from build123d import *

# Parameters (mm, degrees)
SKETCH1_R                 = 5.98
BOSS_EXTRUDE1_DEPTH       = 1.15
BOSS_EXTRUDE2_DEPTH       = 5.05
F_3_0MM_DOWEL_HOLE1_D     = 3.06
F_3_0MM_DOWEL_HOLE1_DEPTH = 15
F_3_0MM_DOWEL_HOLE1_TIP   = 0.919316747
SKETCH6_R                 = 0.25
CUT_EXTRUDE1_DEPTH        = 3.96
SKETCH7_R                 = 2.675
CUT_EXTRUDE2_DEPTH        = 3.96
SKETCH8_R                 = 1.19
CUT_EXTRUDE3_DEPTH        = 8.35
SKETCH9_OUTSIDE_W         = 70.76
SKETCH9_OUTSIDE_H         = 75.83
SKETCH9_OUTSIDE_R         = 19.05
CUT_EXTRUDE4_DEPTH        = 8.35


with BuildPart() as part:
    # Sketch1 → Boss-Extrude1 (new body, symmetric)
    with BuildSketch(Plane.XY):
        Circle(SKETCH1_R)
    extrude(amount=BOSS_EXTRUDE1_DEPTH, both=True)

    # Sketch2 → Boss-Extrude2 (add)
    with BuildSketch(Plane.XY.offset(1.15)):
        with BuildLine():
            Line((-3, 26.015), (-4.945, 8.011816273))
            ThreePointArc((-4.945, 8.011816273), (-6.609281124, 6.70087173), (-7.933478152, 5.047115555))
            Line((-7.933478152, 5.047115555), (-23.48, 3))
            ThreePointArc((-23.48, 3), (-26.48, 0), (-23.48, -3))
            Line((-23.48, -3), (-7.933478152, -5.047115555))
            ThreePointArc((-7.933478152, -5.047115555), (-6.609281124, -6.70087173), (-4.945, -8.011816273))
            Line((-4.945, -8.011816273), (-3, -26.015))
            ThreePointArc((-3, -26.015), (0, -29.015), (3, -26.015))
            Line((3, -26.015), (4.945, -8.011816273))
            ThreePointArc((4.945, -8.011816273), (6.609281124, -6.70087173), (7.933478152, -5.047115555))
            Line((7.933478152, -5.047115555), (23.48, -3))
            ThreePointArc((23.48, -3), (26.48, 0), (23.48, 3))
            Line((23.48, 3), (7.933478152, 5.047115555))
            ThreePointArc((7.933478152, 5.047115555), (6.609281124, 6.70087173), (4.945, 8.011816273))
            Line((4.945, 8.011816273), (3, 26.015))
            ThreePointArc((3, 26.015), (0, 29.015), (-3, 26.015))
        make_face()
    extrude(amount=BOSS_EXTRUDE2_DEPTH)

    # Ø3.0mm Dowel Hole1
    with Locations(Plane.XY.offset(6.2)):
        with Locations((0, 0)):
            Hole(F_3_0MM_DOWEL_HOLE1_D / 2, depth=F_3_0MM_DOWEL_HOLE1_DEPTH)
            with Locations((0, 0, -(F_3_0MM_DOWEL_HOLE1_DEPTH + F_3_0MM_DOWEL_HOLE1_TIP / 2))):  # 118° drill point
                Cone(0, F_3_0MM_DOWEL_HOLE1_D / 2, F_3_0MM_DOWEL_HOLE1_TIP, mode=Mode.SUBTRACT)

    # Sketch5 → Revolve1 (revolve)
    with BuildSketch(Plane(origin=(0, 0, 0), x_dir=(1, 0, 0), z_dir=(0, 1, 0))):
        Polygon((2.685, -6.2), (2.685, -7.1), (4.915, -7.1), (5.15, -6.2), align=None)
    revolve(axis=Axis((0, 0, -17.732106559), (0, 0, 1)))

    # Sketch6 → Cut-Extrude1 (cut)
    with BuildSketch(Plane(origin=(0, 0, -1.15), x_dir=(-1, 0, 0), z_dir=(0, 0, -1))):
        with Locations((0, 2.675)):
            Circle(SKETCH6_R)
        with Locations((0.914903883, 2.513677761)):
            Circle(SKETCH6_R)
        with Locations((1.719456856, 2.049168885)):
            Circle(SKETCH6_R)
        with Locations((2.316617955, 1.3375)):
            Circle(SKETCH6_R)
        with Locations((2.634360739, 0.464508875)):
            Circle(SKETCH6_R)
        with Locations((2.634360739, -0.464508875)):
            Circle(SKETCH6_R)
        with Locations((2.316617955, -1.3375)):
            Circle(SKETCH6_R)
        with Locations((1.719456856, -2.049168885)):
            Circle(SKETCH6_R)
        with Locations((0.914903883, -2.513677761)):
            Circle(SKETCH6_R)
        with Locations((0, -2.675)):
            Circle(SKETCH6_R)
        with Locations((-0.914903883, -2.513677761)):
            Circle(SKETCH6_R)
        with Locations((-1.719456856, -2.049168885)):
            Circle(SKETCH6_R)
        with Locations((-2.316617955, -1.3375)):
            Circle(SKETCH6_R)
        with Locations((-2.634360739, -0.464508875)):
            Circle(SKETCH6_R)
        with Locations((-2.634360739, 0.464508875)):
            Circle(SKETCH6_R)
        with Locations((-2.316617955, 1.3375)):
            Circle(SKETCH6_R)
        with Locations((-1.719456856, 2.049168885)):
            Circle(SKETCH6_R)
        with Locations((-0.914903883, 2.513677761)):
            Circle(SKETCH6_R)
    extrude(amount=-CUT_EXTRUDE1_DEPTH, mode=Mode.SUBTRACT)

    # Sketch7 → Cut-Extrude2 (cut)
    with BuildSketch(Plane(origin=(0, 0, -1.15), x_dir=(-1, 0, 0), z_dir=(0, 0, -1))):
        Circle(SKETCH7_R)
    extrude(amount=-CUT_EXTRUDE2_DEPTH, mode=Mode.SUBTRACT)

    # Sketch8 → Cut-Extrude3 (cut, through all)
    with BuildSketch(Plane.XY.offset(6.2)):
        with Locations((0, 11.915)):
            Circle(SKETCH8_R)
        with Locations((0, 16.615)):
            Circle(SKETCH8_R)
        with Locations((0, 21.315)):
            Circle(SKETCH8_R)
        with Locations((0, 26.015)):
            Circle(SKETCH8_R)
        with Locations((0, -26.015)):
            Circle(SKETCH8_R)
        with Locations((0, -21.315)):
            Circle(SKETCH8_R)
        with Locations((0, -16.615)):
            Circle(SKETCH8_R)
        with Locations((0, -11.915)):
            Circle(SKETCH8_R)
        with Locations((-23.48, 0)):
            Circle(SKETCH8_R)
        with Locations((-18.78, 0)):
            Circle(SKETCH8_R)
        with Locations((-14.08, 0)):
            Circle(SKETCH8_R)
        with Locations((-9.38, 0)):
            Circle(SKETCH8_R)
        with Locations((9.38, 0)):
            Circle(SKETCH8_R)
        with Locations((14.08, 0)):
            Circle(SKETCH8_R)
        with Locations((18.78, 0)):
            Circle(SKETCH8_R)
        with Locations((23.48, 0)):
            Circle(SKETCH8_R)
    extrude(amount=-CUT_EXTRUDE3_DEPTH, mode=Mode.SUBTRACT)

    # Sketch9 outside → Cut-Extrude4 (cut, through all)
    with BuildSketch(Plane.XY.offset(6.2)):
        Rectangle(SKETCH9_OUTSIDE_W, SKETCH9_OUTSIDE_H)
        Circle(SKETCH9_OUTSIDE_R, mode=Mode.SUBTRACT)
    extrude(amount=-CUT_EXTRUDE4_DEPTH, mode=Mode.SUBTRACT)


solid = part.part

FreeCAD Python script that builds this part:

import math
import FreeCAD as App
import Part
import Sketcher

V = App.Vector
Q = App.Units.Quantity

doc = App.newDocument("Part")
params = doc.addObject("Spreadsheet::Sheet", "Params")
for row, (alias, value) in enumerate([
    ("sketch1_diameter", "11.96 mm"),
    ("pad1_length", "2.3 mm"),
    ("sketch2_radius", "3 mm"),
    ("pad2_length", "5.05 mm"),
    ("sketch3_diameter", "3.06 mm"),
    ("hole_diameter", "3.06 mm"),
    ("hole_depth", "15 mm"),
    ("sketch4_height", "0.9 mm"),
    ("sketch4_width", "2.23 mm"),
    ("revolution_angle", "360 deg"),
    ("sketch5_diameter", "0.5 mm"),
    ("pocket1_length", "3.96 mm"),
    ("sketch6_diameter", "5.35 mm"),
    ("pocket2_length", "3.96 mm"),
    ("sketch7_diameter", "2.38 mm"),
    ("sketch8_diameter", "38.1 mm"),
    ("sketch8_width", "70.76 mm"),
    ("sketch8_height", "75.83 mm"),
], start=1):
    params.set(f"A{row}", alias)
    params.set(f"B{row}", "=" + value)
    params.setAlias(f"B{row}", alias)

body = doc.addObject("PartDesign::Body", "Body")

sketch1 = body.newObject("Sketcher::SketchObject", "Sketch")
sketch1.AttachmentSupport = (doc.getObject("XY_Plane"), [""])
sketch1.MapMode = "FlatFace"
sketch1.addGeometry(Part.Circle(V(0, 0, 0), V(0, 0, 1), 6), False)
sketch1.addConstraint([
    Sketcher.Constraint("Coincident", 0, 3, -1, 1),
    Sketcher.Constraint("Diameter", 0, Q("11.96 mm")),
])
sketch1.setExpression("Constraints[1]", "Params.sketch1_diameter")
pad1 = body.newObject("PartDesign::Pad", "Pad")
pad1.Profile = sketch1
pad1.setExpression("Length", "Params.pad1_length")
pad1.Midplane = True

sketch2 = body.newObject("Sketcher::SketchObject", "Sketch001")
sketch2.AttachmentSupport = (doc.getObject("XY_Plane"), [""])
sketch2.MapMode = "FlatFace"
sketch2.AttachmentOffset = App.Placement(V(0, 0, 1.15), App.Rotation())
sketch2.addGeometry([
    Part.LineSegment(V(-3, 26, 0), V(-4.9, 8, 0)),
    Part.ArcOfCircle(Part.Circle(V(-0.1, 0.1, 0), V(0, 0, 1), 9.3), math.radians(122), math.radians(148)),
    Part.LineSegment(V(-7.9, 5, 0), V(-23.5, 3, 0)),
    Part.ArcOfCircle(Part.Circle(V(-23.5, 0, 0), V(0, 0, 1), 3), math.radians(90), math.radians(270)),
    Part.LineSegment(V(-23.5, -3, 0), V(-7.9, -5, 0)),
    Part.ArcOfCircle(Part.Circle(V(-0.1, -0.1, 0), V(0, 0, 1), 9.3), math.radians(-148), math.radians(-122)),
    Part.LineSegment(V(-4.9, -8, 0), V(-3, -26, 0)),
    Part.ArcOfCircle(Part.Circle(V(0, -26, 0), V(0, 0, 1), 3), math.radians(180), math.radians(360)),
    Part.LineSegment(V(3, -26, 0), V(4.9, -8, 0)),
    Part.ArcOfCircle(Part.Circle(V(0.1, -0.1, 0), V(0, 0, 1), 9.3), math.radians(-58), math.radians(-32)),
    Part.LineSegment(V(7.9, -5, 0), V(23.5, -3, 0)),
    Part.ArcOfCircle(Part.Circle(V(23.5, 0, 0), V(0, 0, 1), 3), math.radians(-90), math.radians(90)),
    Part.LineSegment(V(23.5, 3, 0), V(7.9, 5, 0)),
    Part.ArcOfCircle(Part.Circle(V(0.1, 0.1, 0), V(0, 0, 1), 9.3), math.radians(32), math.radians(58)),
    Part.LineSegment(V(4.9, 8, 0), V(3, 26, 0)),
    Part.ArcOfCircle(Part.Circle(V(0, 26, 0), V(0, 0, 1), 3), math.radians(0), math.radians(180)),
], False)
sketch2.addConstraint([
    Sketcher.Constraint("Coincident", 0, 2, 1, 1),
    Sketcher.Constraint("Coincident", 1, 2, 2, 1),
    Sketcher.Constraint("Coincident", 2, 2, 3, 1),
    Sketcher.Constraint("Coincident", 3, 2, 4, 1),
    Sketcher.Constraint("Coincident", 4, 2, 5, 1),
    Sketcher.Constraint("Coincident", 5, 2, 6, 1),
    Sketcher.Constraint("Coincident", 6, 2, 7, 1),
    Sketcher.Constraint("Coincident", 7, 2, 8, 1),
    Sketcher.Constraint("Coincident", 8, 2, 9, 1),
    Sketcher.Constraint("Coincident", 9, 2, 10, 1),
    Sketcher.Constraint("Coincident", 10, 2, 11, 1),
    Sketcher.Constraint("Coincident", 11, 2, 12, 1),
    Sketcher.Constraint("Coincident", 12, 2, 13, 1),
    Sketcher.Constraint("Coincident", 13, 2, 14, 1),
    Sketcher.Constraint("Coincident", 14, 2, 15, 1),
    Sketcher.Constraint("Coincident", 15, 2, 0, 1),
    Sketcher.Constraint("Equal", 1, 5),
    Sketcher.Constraint("Equal", 3, 7),
    Sketcher.Constraint("Equal", 5, 9),
    Sketcher.Constraint("Equal", 7, 11),
    Sketcher.Constraint("Equal", 9, 13),
    Sketcher.Constraint("Equal", 11, 15),
    Sketcher.Constraint("Symmetric", 1, 3, 9, 3, -1, 1),
    Sketcher.Constraint("Symmetric", 3, 3, 11, 3, -1, 1),
    Sketcher.Constraint("Symmetric", 5, 3, 13, 3, -1, 1),
    Sketcher.Constraint("Symmetric", 7, 3, 15, 3, -1, 1),
    Sketcher.Constraint("Symmetric", 5, 3, 9, 3, -2),
    Sketcher.Constraint("Symmetric", 6, 2, 7, 2, -2),
    Sketcher.Constraint("Symmetric", 3, 2, 10, 2, -2),
    Sketcher.Constraint("Parallel", 0, 8),
    Sketcher.Constraint("Parallel", 2, 10),
    Sketcher.Constraint("Parallel", 4, 12),
    Sketcher.Constraint("Parallel", 6, 14),
    Sketcher.Constraint("Horizontal", 7, 3, 6, 2),
    Sketcher.Constraint("Horizontal", 5, 2, 8, 2),
    Sketcher.Constraint("Horizontal", 4, 2, 9, 2),
    Sketcher.Constraint("Horizontal", 1, 2, 12, 2),
    Sketcher.Constraint("Horizontal", 0, 2, 13, 2),
    Sketcher.Constraint("Horizontal", 15, 3, 14, 2),
    Sketcher.Constraint("Vertical", 3, 3, 2, 2),
    Sketcher.Constraint("Vertical", 2, 2, 3, 2),
    Sketcher.Constraint("Radius", 3, Q("3 mm")),
    Sketcher.Constraint("Radius", 1, Q("9.295 mm")),
    Sketcher.Constraint("DistanceX", 3, 3, -1, 1, Q("23.48 mm")),
    Sketcher.Constraint("DistanceX", 5, 2, 8, 2, Q("9.89 mm")),
    Sketcher.Constraint("DistanceY", 7, 3, -1, 1, Q("26.015 mm")),
    Sketcher.Constraint("DistanceY", 1, 3, 1, 2, Q("4.945 mm")),
    Sketcher.Constraint("DistanceY", 1, 3, 0, 2, Q("7.909701 mm")),
    Sketcher.Constraint("Distance", 2, Q("15.680721 mm")),
])
sketch2.setExpression("Constraints[41]", "Params.sketch2_radius")
pad2 = body.newObject("PartDesign::Pad", "Pad001")
pad2.Profile = sketch2
pad2.setExpression("Length", "Params.pad2_length")

sketch3 = body.newObject("Sketcher::SketchObject", "Sketch002")
sketch3.AttachmentSupport = (doc.getObject("XY_Plane"), [""])
sketch3.MapMode = "FlatFace"
sketch3.AttachmentOffset = App.Placement(V(0, 0, 6.2), App.Rotation())
sketch3.addGeometry(Part.Circle(V(0, 0, 0), V(0, 0, 1), 1.5), False)
sketch3.addConstraint([
    Sketcher.Constraint("Coincident", 0, 3, -1, 1),
    Sketcher.Constraint("Diameter", 0, Q("3.06 mm")),
])
sketch3.setExpression("Constraints[1]", "Params.sketch3_diameter")
doc.recompute()
hole = body.newObject("PartDesign::Hole", "Hole")
hole.Profile = sketch3
hole.ThreadType = "None"
hole.setExpression("Diameter", "Params.hole_diameter")
hole.DepthType = "Dimension"
hole.setExpression("Depth", "Params.hole_depth")
hole.DrillPoint = "Angled"
hole.DrillPointAngle = 118

sketch4 = body.newObject("Sketcher::SketchObject", "Sketch003")
sketch4.AttachmentSupport = (doc.getObject("XZ_Plane"), [""])
sketch4.MapMode = "FlatFace"
sketch4.addGeometry([
    Part.LineSegment(V(2.7, 6.2, 0), V(2.7, 7.1, 0)),
    Part.LineSegment(V(2.7, 7.1, 0), V(4.9, 7.1, 0)),
    Part.LineSegment(V(4.9, 7.1, 0), V(5.2, 6.2, 0)),
    Part.LineSegment(V(5.2, 6.2, 0), V(2.7, 6.2, 0)),
], False)
sketch4.addConstraint([
    Sketcher.Constraint("Coincident", 0, 2, 1, 1),
    Sketcher.Constraint("Coincident", 1, 2, 2, 1),
    Sketcher.Constraint("Coincident", 2, 2, 3, 1),
    Sketcher.Constraint("Coincident", 3, 2, 0, 1),
    Sketcher.Constraint("Vertical", 0),
    Sketcher.Constraint("Horizontal", 1),
    Sketcher.Constraint("Horizontal", 3),
    Sketcher.Constraint("DistanceY", 0, 1, 0, 2, Q("0.9 mm")),
    Sketcher.Constraint("DistanceX", 1, 1, 1, 2, Q("2.23 mm")),
    Sketcher.Constraint("DistanceY", -1, 1, 0, 2, Q("7.1 mm")),
    Sketcher.Constraint("DistanceX", 3, 2, 3, 1, Q("2.465 mm")),
    Sketcher.Constraint("DistanceX", -1, 1, 2, 2, Q("5.15 mm")),
])
sketch4.setExpression("Constraints[7]", "Params.sketch4_height")
sketch4.setExpression("Constraints[8]", "Params.sketch4_width")
revolution = body.newObject("PartDesign::Revolution", "Revolution")
revolution.Profile = sketch4
revolution.ReferenceAxis = (sketch4, ["V_Axis"])
revolution.setExpression("Angle", "Params.revolution_angle")

sketch5 = body.newObject("Sketcher::SketchObject", "Sketch004")
sketch5.AttachmentSupport = (doc.getObject("XY_Plane"), [""])
sketch5.MapMode = "FlatFace"
sketch5.AttachmentOffset = App.Placement(V(0, 0, -1.15), App.Rotation())
sketch5.addGeometry([
    Part.Circle(V(0, 2.67, 0), V(0, 0, 1), 0.25),
    Part.Circle(V(-0.91, 2.51, 0), V(0, 0, 1), 0.25),
    Part.Circle(V(-1.72, 2.05, 0), V(0, 0, 1), 0.25),
    Part.Circle(V(-2.32, 1.34, 0), V(0, 0, 1), 0.25),
    Part.Circle(V(-2.63, 0.46, 0), V(0, 0, 1), 0.25),
    Part.Circle(V(-2.63, -0.46, 0), V(0, 0, 1), 0.25),
    Part.Circle(V(-2.32, -1.34, 0), V(0, 0, 1), 0.25),
    Part.Circle(V(-1.72, -2.05, 0), V(0, 0, 1), 0.25),
    Part.Circle(V(-0.91, -2.51, 0), V(0, 0, 1), 0.25),
    Part.Circle(V(0, -2.67, 0), V(0, 0, 1), 0.25),
    Part.Circle(V(0.91, -2.51, 0), V(0, 0, 1), 0.25),
    Part.Circle(V(1.72, -2.05, 0), V(0, 0, 1), 0.25),
    Part.Circle(V(2.32, -1.34, 0), V(0, 0, 1), 0.25),
    Part.Circle(V(2.63, -0.46, 0), V(0, 0, 1), 0.25),
    Part.Circle(V(2.63, 0.46, 0), V(0, 0, 1), 0.25),
    Part.Circle(V(2.32, 1.34, 0), V(0, 0, 1), 0.25),
    Part.Circle(V(1.72, 2.05, 0), V(0, 0, 1), 0.25),
    Part.Circle(V(0.91, 2.51, 0), V(0, 0, 1), 0.25),
], False)
sketch5.addConstraint([
    Sketcher.Constraint("Equal", 0, 1),
    Sketcher.Constraint("Equal", 1, 2),
    Sketcher.Constraint("Equal", 2, 3),
    Sketcher.Constraint("Equal", 3, 4),
    Sketcher.Constraint("Equal", 4, 5),
    Sketcher.Constraint("Equal", 5, 6),
    Sketcher.Constraint("Equal", 6, 7),
    Sketcher.Constraint("Equal", 7, 8),
    Sketcher.Constraint("Equal", 8, 9),
    Sketcher.Constraint("Equal", 9, 10),
    Sketcher.Constraint("Equal", 10, 11),
    Sketcher.Constraint("Equal", 11, 12),
    Sketcher.Constraint("Equal", 12, 13),
    Sketcher.Constraint("Equal", 13, 14),
    Sketcher.Constraint("Equal", 14, 15),
    Sketcher.Constraint("Equal", 15, 16),
    Sketcher.Constraint("Equal", 16, 17),
    Sketcher.Constraint("Symmetric", 0, 3, 9, 3, -1, 1),
    Sketcher.Constraint("Symmetric", 1, 3, 10, 3, -1, 1),
    Sketcher.Constraint("Symmetric", 2, 3, 11, 3, -1, 1),
    Sketcher.Constraint("Symmetric", 3, 3, 12, 3, -1, 1),
    Sketcher.Constraint("Symmetric", 4, 3, 13, 3, -1, 1),
    Sketcher.Constraint("Symmetric", 5, 3, 14, 3, -1, 1),
    Sketcher.Constraint("Symmetric", 6, 3, 15, 3, -1, 1),
    Sketcher.Constraint("Symmetric", 7, 3, 16, 3, -1, 1),
    Sketcher.Constraint("Symmetric", 8, 3, 17, 3, -1, 1),
    Sketcher.Constraint("Symmetric", 8, 3, 10, 3, -2),
    Sketcher.Constraint("Symmetric", 7, 3, 11, 3, -2),
    Sketcher.Constraint("Symmetric", 6, 3, 12, 3, -2),
    Sketcher.Constraint("Symmetric", 5, 3, 13, 3, -2),
    Sketcher.Constraint("PointOnObject", 0, 3, -2),
    Sketcher.Constraint("Diameter", 0, Q("0.5 mm")),
    Sketcher.Constraint("DistanceY", -1, 1, 0, 3, Q("2.675 mm")),
    Sketcher.Constraint("DistanceY", 6, 3, 3, 3, Q("2.675 mm")),
    Sketcher.Constraint("DistanceY", -1, 1, 2, 3, Q("2.049169 mm")),
    Sketcher.Constraint("DistanceX", 4, 3, -1, 1, Q("2.634361 mm")),
    Sketcher.Constraint("DistanceY", -1, 1, 4, 3, Q("0.464509 mm")),
    Sketcher.Constraint("DistanceY", 2, 3, 1, 3, Q("0.464509 mm")),
    Sketcher.Constraint("DistanceX", 3, 3, 2, 3, Q("0.597161 mm")),
    Sketcher.Constraint("DistanceX", 7, 3, 10, 3, Q("2.634361 mm")),
    Sketcher.Constraint("DistanceX", 1, 3, -1, 1, Q("0.914904 mm")),
])
sketch5.setExpression("Constraints[31]", "Params.sketch5_diameter")
pocket1 = body.newObject("PartDesign::Pocket", "Pocket")
pocket1.Profile = sketch5
pocket1.setExpression("Length", "Params.pocket1_length")
pocket1.Reversed = True

sketch6 = body.newObject("Sketcher::SketchObject", "Sketch005")
sketch6.AttachmentSupport = (doc.getObject("XY_Plane"), [""])
sketch6.MapMode = "FlatFace"
sketch6.AttachmentOffset = App.Placement(V(0, 0, -1.15), App.Rotation())
sketch6.addGeometry(Part.Circle(V(0, 0, 0), V(0, 0, 1), 2.7), False)
sketch6.addConstraint([
    Sketcher.Constraint("Coincident", 0, 3, -1, 1),
    Sketcher.Constraint("Diameter", 0, Q("5.35 mm")),
])
sketch6.setExpression("Constraints[1]", "Params.sketch6_diameter")
pocket2 = body.newObject("PartDesign::Pocket", "Pocket001")
pocket2.Profile = sketch6
pocket2.setExpression("Length", "Params.pocket2_length")
pocket2.Reversed = True

sketch7 = body.newObject("Sketcher::SketchObject", "Sketch006")
sketch7.AttachmentSupport = (doc.getObject("XY_Plane"), [""])
sketch7.MapMode = "FlatFace"
sketch7.AttachmentOffset = App.Placement(V(0, 0, 6.2), App.Rotation())
sketch7.addGeometry([
    Part.Circle(V(0, 11.9, 0), V(0, 0, 1), 1.2),
    Part.Circle(V(0, 16.6, 0), V(0, 0, 1), 1.2),
    Part.Circle(V(0, 21.3, 0), V(0, 0, 1), 1.2),
    Part.Circle(V(0, 26, 0), V(0, 0, 1), 1.2),
    Part.Circle(V(0, -26, 0), V(0, 0, 1), 1.2),
    Part.Circle(V(0, -21.3, 0), V(0, 0, 1), 1.2),
    Part.Circle(V(0, -16.6, 0), V(0, 0, 1), 1.2),
    Part.Circle(V(0, -11.9, 0), V(0, 0, 1), 1.2),
    Part.Circle(V(-23.5, 0, 0), V(0, 0, 1), 1.2),
    Part.Circle(V(-18.8, 0, 0), V(0, 0, 1), 1.2),
    Part.Circle(V(-14.1, 0, 0), V(0, 0, 1), 1.2),
    Part.Circle(V(-9.4, 0, 0), V(0, 0, 1), 1.2),
    Part.Circle(V(9.4, 0, 0), V(0, 0, 1), 1.2),
    Part.Circle(V(14.1, 0, 0), V(0, 0, 1), 1.2),
    Part.Circle(V(18.8, 0, 0), V(0, 0, 1), 1.2),
    Part.Circle(V(23.5, 0, 0), V(0, 0, 1), 1.2),
], False)
sketch7.addConstraint([
    Sketcher.Constraint("Equal", 0, 1),
    Sketcher.Constraint("Equal", 1, 2),
    Sketcher.Constraint("Equal", 2, 3),
    Sketcher.Constraint("Equal", 3, 4),
    Sketcher.Constraint("Equal", 4, 5),
    Sketcher.Constraint("Equal", 5, 6),
    Sketcher.Constraint("Equal", 6, 7),
    Sketcher.Constraint("Equal", 7, 8),
    Sketcher.Constraint("Equal", 8, 9),
    Sketcher.Constraint("Equal", 9, 10),
    Sketcher.Constraint("Equal", 10, 11),
    Sketcher.Constraint("Equal", 11, 12),
    Sketcher.Constraint("Equal", 12, 13),
    Sketcher.Constraint("Equal", 13, 14),
    Sketcher.Constraint("Equal", 14, 15),
    Sketcher.Constraint("Symmetric", 3, 3, 4, 3, -1, 1),
    Sketcher.Constraint("Symmetric", 2, 3, 5, 3, -1, 1),
    Sketcher.Constraint("Symmetric", 1, 3, 6, 3, -1, 1),
    Sketcher.Constraint("Symmetric", 0, 3, 7, 3, -1, 1),
    Sketcher.Constraint("Symmetric", 11, 3, 12, 3, -1, 1),
    Sketcher.Constraint("Symmetric", 10, 3, 13, 3, -1, 1),
    Sketcher.Constraint("Symmetric", 9, 3, 14, 3, -1, 1),
    Sketcher.Constraint("Symmetric", 8, 3, 15, 3, -1, 1),
    Sketcher.Constraint("PointOnObject", 0, 3, -2),
    Sketcher.Constraint("PointOnObject", 1, 3, -2),
    Sketcher.Constraint("PointOnObject", 2, 3, -2),
    Sketcher.Constraint("PointOnObject", 3, 3, -2),
    Sketcher.Constraint("PointOnObject", 8, 3, -1),
    Sketcher.Constraint("PointOnObject", 9, 3, -1),
    Sketcher.Constraint("PointOnObject", 10, 3, -1),
    Sketcher.Constraint("PointOnObject", 11, 3, -1),
    Sketcher.Constraint("Diameter", 0, Q("2.38 mm")),
    Sketcher.Constraint("DistanceY", 0, 3, 1, 3, Q("4.7 mm")),
    Sketcher.Constraint("DistanceY", 1, 3, 2, 3, Q("4.7 mm")),
    Sketcher.Constraint("DistanceY", 2, 3, 3, 3, Q("4.7 mm")),
    Sketcher.Constraint("DistanceX", 8, 3, 9, 3, Q("4.7 mm")),
    Sketcher.Constraint("DistanceX", 9, 3, 10, 3, Q("4.7 mm")),
    Sketcher.Constraint("DistanceX", 10, 3, 11, 3, Q("4.7 mm")),
    Sketcher.Constraint("DistanceX", 8, 3, -1, 1, Q("23.48 mm")),
    Sketcher.Constraint("DistanceY", 4, 3, 0, 3, Q("37.93 mm")),
])
sketch7.setExpression("Constraints[31]", "Params.sketch7_diameter")
pocket3 = body.newObject("PartDesign::Pocket", "Pocket002")
pocket3.Profile = sketch7
pocket3.Type = "ThroughAll"

sketch8 = body.newObject("Sketcher::SketchObject", "Sketch007")
sketch8.AttachmentSupport = (doc.getObject("XY_Plane"), [""])
sketch8.MapMode = "FlatFace"
sketch8.AttachmentOffset = App.Placement(V(0, 0, 6.2), App.Rotation())
sketch8.addGeometry([
    Part.LineSegment(V(-35, 38, 0), V(-35, -38, 0)),
    Part.LineSegment(V(-35, -38, 0), V(35, -38, 0)),
    Part.LineSegment(V(35, -38, 0), V(35, 38, 0)),
    Part.LineSegment(V(35, 38, 0), V(-35, 38, 0)),
    Part.Circle(V(0, 0, 0), V(0, 0, 1), 19),
], False)
sketch8.addConstraint([
    Sketcher.Constraint("Coincident", 0, 2, 1, 1),
    Sketcher.Constraint("Coincident", 1, 2, 2, 1),
    Sketcher.Constraint("Coincident", 2, 2, 3, 1),
    Sketcher.Constraint("Coincident", 3, 2, 0, 1),
    Sketcher.Constraint("Vertical", 0),
    Sketcher.Constraint("Horizontal", 1),
    Sketcher.Constraint("Vertical", 2),
    Sketcher.Constraint("Horizontal", 3),
    Sketcher.Constraint("Coincident", 4, 3, -1, 1),
    Sketcher.Constraint("Symmetric", 0, 2, 2, 2, -1, 1),
    Sketcher.Constraint("Diameter", 4, Q("38.1 mm")),
    Sketcher.Constraint("DistanceX", 1, 1, 1, 2, Q("70.76 mm")),
    Sketcher.Constraint("DistanceY", 0, 2, 0, 1, Q("75.83 mm")),
])
sketch8.setExpression("Constraints[10]", "Params.sketch8_diameter")
sketch8.setExpression("Constraints[11]", "Params.sketch8_width")
sketch8.setExpression("Constraints[12]", "Params.sketch8_height")
pocket4 = body.newObject("PartDesign::Pocket", "Pocket003")
pocket4.Profile = sketch8
pocket4.Type = "ThroughAll"

doc.recompute()
